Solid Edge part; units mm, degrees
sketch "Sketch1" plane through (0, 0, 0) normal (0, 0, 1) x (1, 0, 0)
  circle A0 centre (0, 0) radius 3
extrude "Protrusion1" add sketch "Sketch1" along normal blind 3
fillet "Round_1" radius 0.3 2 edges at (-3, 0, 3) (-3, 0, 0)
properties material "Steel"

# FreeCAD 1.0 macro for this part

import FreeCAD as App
import Part
import Sketcher

V = App.Vector
Q = App.Units.Quantity


def edges_at(feature, points):
    """Names of the edges that pass closest to the given points."""
    edges = feature.Shape.Edges
    near = lambda p: min(range(len(edges)), key=lambda i: edges[i].distToShape(Part.Vertex(*p))[0])
    return sorted({f"Edge{near(p) + 1}" for p in points})

doc = App.newDocument("Part")
body = doc.addObject("PartDesign::Body", "Body")

# Sketch on XY plane
sketch1 = body.newObject("Sketcher::SketchObject", "Sketch")
sketch1.AttachmentSupport = (doc.getObject("XY_Plane"), [""])
sketch1.MapMode = "FlatFace"
sketch1.addGeometry(Part.Circle(V(0, 0, 0), V(0, 0, 1), 3), False)
sketch1.addConstraint([
    Sketcher.Constraint("Coincident", 0, 3, -1, 1),
    Sketcher.Constraint("Diameter", 0, Q("6 mm")),
])
pad1 = body.newObject("PartDesign::Pad", "Pad")
pad1.Profile = sketch1
pad1.Length = 3
doc.recompute()

fillet = body.newObject("PartDesign::Fillet", "Fillet")
fillet.Base = (pad1, edges_at(pad1, [(-3, 0, 3), (-3, 0, 0)]))
fillet.Radius = 0.3

doc.recompute()
